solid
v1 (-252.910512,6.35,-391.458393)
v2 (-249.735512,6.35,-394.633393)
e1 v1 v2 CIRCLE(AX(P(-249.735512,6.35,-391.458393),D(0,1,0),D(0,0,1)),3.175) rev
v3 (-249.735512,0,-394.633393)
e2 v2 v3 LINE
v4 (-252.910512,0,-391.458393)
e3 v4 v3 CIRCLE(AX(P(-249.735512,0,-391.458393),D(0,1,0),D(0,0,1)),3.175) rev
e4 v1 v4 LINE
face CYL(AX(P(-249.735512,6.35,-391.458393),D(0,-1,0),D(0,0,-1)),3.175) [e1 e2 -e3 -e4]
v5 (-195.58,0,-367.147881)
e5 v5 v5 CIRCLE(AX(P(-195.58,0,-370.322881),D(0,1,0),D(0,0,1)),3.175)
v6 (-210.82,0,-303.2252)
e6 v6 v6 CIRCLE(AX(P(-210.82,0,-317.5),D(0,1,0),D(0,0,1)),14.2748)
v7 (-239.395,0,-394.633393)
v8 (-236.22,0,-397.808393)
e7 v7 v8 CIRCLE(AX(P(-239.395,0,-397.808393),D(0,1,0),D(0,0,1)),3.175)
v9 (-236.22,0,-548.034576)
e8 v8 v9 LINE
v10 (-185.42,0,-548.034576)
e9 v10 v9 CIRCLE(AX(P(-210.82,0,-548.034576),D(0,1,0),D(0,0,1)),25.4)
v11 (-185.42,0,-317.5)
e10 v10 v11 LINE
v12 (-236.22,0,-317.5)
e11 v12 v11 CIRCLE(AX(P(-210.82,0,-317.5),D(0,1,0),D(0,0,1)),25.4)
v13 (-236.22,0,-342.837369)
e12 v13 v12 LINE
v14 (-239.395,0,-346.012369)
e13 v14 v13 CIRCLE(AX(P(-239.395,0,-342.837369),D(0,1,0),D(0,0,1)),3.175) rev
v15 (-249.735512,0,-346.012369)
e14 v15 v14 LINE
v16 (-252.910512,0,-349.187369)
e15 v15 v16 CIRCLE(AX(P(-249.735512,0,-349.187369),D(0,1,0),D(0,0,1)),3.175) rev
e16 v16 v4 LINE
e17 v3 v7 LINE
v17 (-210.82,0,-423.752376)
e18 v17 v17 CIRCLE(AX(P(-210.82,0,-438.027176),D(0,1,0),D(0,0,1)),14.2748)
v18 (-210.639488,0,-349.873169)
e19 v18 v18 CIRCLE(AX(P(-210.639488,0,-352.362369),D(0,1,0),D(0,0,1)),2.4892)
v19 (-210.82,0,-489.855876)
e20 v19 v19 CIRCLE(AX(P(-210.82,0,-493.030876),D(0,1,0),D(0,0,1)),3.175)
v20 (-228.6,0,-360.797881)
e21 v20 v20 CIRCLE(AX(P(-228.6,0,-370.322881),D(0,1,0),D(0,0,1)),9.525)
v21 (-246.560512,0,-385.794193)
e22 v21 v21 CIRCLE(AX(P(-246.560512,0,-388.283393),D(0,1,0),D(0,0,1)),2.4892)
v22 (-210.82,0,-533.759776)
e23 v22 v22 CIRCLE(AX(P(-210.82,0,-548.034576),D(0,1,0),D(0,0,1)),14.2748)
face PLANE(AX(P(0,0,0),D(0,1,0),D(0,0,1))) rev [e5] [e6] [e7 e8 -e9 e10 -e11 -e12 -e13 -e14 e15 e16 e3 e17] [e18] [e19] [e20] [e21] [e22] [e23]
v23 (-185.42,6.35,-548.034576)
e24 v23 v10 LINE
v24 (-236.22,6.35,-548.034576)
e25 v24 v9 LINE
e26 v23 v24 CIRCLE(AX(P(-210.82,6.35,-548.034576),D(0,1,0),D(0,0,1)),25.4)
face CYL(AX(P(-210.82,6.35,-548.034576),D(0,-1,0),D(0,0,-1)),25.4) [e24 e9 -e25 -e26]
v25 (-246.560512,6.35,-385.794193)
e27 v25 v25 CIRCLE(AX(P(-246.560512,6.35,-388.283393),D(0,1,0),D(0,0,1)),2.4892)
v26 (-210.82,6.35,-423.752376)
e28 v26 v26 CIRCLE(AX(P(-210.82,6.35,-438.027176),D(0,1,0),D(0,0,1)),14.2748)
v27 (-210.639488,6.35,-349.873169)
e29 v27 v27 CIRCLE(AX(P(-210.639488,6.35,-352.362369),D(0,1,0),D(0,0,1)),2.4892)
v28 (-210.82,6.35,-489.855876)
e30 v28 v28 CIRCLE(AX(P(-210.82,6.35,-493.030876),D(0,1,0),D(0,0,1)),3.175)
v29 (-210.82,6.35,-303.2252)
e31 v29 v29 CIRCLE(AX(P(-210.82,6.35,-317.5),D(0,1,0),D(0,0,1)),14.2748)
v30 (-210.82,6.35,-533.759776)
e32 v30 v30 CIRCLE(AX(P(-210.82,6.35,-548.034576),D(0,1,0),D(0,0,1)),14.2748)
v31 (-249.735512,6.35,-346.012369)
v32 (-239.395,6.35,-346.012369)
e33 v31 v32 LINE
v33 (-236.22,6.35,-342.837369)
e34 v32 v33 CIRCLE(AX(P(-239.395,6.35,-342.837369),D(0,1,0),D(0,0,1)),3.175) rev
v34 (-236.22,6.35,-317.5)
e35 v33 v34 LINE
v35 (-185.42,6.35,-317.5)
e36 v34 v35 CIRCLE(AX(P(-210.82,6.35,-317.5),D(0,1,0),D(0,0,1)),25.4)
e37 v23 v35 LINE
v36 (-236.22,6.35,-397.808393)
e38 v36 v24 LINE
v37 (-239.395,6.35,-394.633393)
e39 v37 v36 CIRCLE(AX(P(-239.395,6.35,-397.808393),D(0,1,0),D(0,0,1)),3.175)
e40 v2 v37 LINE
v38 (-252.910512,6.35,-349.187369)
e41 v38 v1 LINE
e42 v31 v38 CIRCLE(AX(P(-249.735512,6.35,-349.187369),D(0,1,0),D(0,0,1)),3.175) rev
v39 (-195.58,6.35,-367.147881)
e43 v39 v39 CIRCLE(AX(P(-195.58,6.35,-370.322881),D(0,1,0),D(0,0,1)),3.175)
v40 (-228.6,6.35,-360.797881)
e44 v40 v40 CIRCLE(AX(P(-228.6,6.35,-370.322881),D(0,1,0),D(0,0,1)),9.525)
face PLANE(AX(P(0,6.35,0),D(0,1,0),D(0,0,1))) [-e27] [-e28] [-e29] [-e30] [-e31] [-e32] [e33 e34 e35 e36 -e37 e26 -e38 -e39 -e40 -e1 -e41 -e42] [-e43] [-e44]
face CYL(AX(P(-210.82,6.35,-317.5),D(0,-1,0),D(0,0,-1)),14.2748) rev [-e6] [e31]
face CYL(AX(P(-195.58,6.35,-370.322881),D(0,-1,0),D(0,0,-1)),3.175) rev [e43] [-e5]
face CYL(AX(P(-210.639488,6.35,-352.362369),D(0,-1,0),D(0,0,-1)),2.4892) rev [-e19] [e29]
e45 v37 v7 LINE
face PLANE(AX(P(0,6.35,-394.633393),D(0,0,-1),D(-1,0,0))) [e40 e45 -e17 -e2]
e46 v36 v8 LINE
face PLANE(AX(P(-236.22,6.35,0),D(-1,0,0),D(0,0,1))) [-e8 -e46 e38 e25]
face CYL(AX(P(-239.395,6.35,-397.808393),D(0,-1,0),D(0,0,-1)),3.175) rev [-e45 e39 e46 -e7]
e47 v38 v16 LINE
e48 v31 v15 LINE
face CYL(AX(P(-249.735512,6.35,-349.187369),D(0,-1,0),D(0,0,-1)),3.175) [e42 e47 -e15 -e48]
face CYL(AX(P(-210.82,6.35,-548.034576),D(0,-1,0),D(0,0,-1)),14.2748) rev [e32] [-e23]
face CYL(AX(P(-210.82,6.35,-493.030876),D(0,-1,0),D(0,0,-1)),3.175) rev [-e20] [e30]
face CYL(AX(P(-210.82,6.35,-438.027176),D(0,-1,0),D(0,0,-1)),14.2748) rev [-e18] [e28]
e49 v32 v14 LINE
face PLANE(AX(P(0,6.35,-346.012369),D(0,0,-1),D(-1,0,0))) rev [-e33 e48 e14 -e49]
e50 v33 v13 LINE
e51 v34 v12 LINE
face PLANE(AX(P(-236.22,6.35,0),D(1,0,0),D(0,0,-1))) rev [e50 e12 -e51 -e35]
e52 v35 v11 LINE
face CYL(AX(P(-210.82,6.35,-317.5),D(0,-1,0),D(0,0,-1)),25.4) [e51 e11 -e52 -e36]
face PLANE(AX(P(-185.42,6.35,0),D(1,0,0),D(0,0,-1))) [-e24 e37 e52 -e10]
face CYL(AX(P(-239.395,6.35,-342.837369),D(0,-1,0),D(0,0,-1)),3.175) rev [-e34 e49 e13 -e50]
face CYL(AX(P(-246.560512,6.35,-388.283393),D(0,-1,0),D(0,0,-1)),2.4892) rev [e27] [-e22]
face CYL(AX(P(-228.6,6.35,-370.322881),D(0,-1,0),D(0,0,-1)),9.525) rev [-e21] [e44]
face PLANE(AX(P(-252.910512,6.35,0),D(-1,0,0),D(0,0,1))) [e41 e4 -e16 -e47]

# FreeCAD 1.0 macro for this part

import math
import FreeCAD as App
import Part
import Sketcher
Q = App.Units.Quantity

doc = App.newDocument("Part")
body = doc.addObject("PartDesign::Body", "Body")

sketch1 = body.newObject("Sketcher::SketchObject", "Sketch")
sketch1.AttachmentSupport = (doc.getObject("XZ_Plane"), [""])
sketch1.MapMode = "FlatFace"
sketch1.addGeometry([
    Part.LineSegment(App.Vector(-249.7, -346, 0), App.Vector(-239.4, -346, 0)),
    Part.ArcOfCircle(Part.Circle(App.Vector(-239.4, -342.8, 0), App.Vector(0, 0, 1), 3.2), math.radians(-90), math.radians(0)),
    Part.LineSegment(App.Vector(-236.2, -342.8, 0), App.Vector(-236.2, -317.5, 0)),
    Part.ArcOfCircle(Part.Circle(App.Vector(-210.8, -317.5, 0), App.Vector(0, 0, 1), 25.4), math.radians(0), math.radians(180)),
    Part.LineSegment(App.Vector(-185.4, -317.5, 0), App.Vector(-185.4, -548, 0)),
    Part.ArcOfCircle(Part.Circle(App.Vector(-210.8, -548, 0), App.Vector(0, 0, 1), 25.4), math.radians(180), math.radians(360)),
    Part.LineSegment(App.Vector(-236.2, -548, 0), App.Vector(-236.2, -397.8, 0)),
    Part.ArcOfCircle(Part.Circle(App.Vector(-239.4, -397.8, 0), App.Vector(0, 0, 1), 3.2), math.radians(0), math.radians(90)),
    Part.LineSegment(App.Vector(-239.4, -394.6, 0), App.Vector(-249.7, -394.6, 0)),
    Part.ArcOfCircle(Part.Circle(App.Vector(-249.7, -391.5, 0), App.Vector(0, 0, 1), 3.2), math.radians(-180), math.radians(-90)),
    Part.LineSegment(App.Vector(-252.9, -391.5, 0), App.Vector(-252.9, -349.2, 0)),
    Part.ArcOfCircle(Part.Circle(App.Vector(-249.7, -349.2, 0), App.Vector(0, 0, 1), 3.2), math.radians(90), math.radians(180)),
    Part.Circle(App.Vector(-246.6, -388.3, 0), App.Vector(0, 0, 1), 2.5),
    Part.Circle(App.Vector(-228.6, -370.3, 0), App.Vector(0, 0, 1), 9.5),
    Part.Circle(App.Vector(-210.8, -317.5, 0), App.Vector(0, 0, 1), 14.3),
    Part.Circle(App.Vector(-210.6, -352.4, 0), App.Vector(0, 0, 1), 2.5),
    Part.Circle(App.Vector(-195.6, -370.3, 0), App.Vector(0, 0, 1), 3.2),
    Part.Circle(App.Vector(-210.8, -438, 0), App.Vector(0, 0, 1), 14.3),
    Part.Circle(App.Vector(-210.8, -493, 0), App.Vector(0, 0, 1), 3.2),
    Part.Circle(App.Vector(-210.8, -548, 0), App.Vector(0, 0, 1), 14.3),
], False)
sketch1.addConstraint([
    Sketcher.Constraint("Tangent", 0, 2, 1, 1),
    Sketcher.Constraint("Tangent", 1, 2, 2, 1),
    Sketcher.Constraint("Tangent", 2, 2, 3, 2),
    Sketcher.Constraint("Tangent", 3, 1, 4, 1),
    Sketcher.Constraint("Tangent", 4, 2, 5, 2),
    Sketcher.Constraint("Tangent", 5, 1, 6, 1),
    Sketcher.Constraint("Tangent", 6, 2, 7, 1),
    Sketcher.Constraint("Tangent", 7, 2, 8, 1),
    Sketcher.Constraint("Tangent", 8, 2, 9, 2),
    Sketcher.Constraint("Tangent", 9, 1, 10, 1),
    Sketcher.Constraint("Tangent", 10, 2, 11, 2),
    Sketcher.Constraint("Tangent", 11, 1, 0, 1),
    Sketcher.Constraint("Horizontal", 0),
    Sketcher.Constraint("Vertical", 2),
    Sketcher.Constraint("Vertical", 4),
    Sketcher.Constraint("Vertical", 6),
    Sketcher.Constraint("Horizontal", 8),
    Sketcher.Constraint("Vertical", 10),
    Sketcher.Constraint("Coincident", 14, 3, 3, 3),
    Sketcher.Constraint("Coincident", 19, 3, 5, 3),
    Sketcher.Constraint("Equal", 3, 5),
    Sketcher.Constraint("Equal", 1, 7),
    Sketcher.Constraint("Equal", 7, 9),
    Sketcher.Constraint("Equal", 9, 11),
    Sketcher.Constraint("Equal", 12, 15),
    Sketcher.Constraint("Equal", 11, 16),
    Sketcher.Constraint("Equal", 14, 17),
    Sketcher.Constraint("Equal", 16, 18),
    Sketcher.Constraint("Equal", 17, 19),
    Sketcher.Constraint("Horizontal", 13, 3, 16, 3),
    Sketcher.Constraint("Vertical", 14, 3, 17, 3),
    Sketcher.Constraint("Vertical", 17, 3, 18, 3),
    Sketcher.Constraint("Radius", 3, Q("1 in")),
    Sketcher.Constraint("Diameter", 13, Q("0.75 in")),
    Sketcher.Constraint("Diameter", 16, Q("0.25 in")),
    Sketcher.Constraint("Diameter", 12, Q("0.196 in")),
    Sketcher.Constraint("Diameter", 14, Q("1.124 in")),
    Sketcher.Constraint("DistanceX", 13, 3, -1, 1, Q("9 in")),
    Sketcher.Constraint("DistanceX", 3, 3, -1, 1, Q("8.3 in")),
    Sketcher.Constraint("DistanceY", 3, 3, -1, 1, Q("12.5 in")),
    Sketcher.Constraint("DistanceX", 16, 3, -1, 1, Q("7.7 in")),
    Sketcher.Constraint("DistanceY", 15, 3, 0, 2, Q("0.25 in")),
    Sketcher.Constraint("DistanceY", 7, 2, 12, 3, Q("0.25 in")),
    Sketcher.Constraint("DistanceX", 9, 1, 12, 3, Q("0.25 in")),
    Sketcher.Constraint("DistanceY", 19, 3, 17, 3, Q("4.331 in")),
    Sketcher.Constraint("DistanceY", 18, 3, 17, 3, Q("2.1655 in")),
    Sketcher.Constraint("DistanceY", 2, 1, 2, 2, 25.337369),
    Sketcher.Constraint("DistanceX", 0, 1, 0, 2, 10.340512),
    Sketcher.Constraint("DistanceY", 4, 2, 4, 1, 230.534576),
    Sketcher.Constraint("DistanceY", 6, 1, 6, 2, 150.226183),
    Sketcher.Constraint("DistanceY", 13, 3, -1, 1, 370.322881),
    Sketcher.Constraint("DistanceX", 15, 3, -1, 1, 210.639488),
])
pad1 = body.newObject("PartDesign::Pad", "Pad")
pad1.Profile = sketch1
pad1.Length = Q("0.25 in")
pad1.Reversed = True

doc.recompute()
